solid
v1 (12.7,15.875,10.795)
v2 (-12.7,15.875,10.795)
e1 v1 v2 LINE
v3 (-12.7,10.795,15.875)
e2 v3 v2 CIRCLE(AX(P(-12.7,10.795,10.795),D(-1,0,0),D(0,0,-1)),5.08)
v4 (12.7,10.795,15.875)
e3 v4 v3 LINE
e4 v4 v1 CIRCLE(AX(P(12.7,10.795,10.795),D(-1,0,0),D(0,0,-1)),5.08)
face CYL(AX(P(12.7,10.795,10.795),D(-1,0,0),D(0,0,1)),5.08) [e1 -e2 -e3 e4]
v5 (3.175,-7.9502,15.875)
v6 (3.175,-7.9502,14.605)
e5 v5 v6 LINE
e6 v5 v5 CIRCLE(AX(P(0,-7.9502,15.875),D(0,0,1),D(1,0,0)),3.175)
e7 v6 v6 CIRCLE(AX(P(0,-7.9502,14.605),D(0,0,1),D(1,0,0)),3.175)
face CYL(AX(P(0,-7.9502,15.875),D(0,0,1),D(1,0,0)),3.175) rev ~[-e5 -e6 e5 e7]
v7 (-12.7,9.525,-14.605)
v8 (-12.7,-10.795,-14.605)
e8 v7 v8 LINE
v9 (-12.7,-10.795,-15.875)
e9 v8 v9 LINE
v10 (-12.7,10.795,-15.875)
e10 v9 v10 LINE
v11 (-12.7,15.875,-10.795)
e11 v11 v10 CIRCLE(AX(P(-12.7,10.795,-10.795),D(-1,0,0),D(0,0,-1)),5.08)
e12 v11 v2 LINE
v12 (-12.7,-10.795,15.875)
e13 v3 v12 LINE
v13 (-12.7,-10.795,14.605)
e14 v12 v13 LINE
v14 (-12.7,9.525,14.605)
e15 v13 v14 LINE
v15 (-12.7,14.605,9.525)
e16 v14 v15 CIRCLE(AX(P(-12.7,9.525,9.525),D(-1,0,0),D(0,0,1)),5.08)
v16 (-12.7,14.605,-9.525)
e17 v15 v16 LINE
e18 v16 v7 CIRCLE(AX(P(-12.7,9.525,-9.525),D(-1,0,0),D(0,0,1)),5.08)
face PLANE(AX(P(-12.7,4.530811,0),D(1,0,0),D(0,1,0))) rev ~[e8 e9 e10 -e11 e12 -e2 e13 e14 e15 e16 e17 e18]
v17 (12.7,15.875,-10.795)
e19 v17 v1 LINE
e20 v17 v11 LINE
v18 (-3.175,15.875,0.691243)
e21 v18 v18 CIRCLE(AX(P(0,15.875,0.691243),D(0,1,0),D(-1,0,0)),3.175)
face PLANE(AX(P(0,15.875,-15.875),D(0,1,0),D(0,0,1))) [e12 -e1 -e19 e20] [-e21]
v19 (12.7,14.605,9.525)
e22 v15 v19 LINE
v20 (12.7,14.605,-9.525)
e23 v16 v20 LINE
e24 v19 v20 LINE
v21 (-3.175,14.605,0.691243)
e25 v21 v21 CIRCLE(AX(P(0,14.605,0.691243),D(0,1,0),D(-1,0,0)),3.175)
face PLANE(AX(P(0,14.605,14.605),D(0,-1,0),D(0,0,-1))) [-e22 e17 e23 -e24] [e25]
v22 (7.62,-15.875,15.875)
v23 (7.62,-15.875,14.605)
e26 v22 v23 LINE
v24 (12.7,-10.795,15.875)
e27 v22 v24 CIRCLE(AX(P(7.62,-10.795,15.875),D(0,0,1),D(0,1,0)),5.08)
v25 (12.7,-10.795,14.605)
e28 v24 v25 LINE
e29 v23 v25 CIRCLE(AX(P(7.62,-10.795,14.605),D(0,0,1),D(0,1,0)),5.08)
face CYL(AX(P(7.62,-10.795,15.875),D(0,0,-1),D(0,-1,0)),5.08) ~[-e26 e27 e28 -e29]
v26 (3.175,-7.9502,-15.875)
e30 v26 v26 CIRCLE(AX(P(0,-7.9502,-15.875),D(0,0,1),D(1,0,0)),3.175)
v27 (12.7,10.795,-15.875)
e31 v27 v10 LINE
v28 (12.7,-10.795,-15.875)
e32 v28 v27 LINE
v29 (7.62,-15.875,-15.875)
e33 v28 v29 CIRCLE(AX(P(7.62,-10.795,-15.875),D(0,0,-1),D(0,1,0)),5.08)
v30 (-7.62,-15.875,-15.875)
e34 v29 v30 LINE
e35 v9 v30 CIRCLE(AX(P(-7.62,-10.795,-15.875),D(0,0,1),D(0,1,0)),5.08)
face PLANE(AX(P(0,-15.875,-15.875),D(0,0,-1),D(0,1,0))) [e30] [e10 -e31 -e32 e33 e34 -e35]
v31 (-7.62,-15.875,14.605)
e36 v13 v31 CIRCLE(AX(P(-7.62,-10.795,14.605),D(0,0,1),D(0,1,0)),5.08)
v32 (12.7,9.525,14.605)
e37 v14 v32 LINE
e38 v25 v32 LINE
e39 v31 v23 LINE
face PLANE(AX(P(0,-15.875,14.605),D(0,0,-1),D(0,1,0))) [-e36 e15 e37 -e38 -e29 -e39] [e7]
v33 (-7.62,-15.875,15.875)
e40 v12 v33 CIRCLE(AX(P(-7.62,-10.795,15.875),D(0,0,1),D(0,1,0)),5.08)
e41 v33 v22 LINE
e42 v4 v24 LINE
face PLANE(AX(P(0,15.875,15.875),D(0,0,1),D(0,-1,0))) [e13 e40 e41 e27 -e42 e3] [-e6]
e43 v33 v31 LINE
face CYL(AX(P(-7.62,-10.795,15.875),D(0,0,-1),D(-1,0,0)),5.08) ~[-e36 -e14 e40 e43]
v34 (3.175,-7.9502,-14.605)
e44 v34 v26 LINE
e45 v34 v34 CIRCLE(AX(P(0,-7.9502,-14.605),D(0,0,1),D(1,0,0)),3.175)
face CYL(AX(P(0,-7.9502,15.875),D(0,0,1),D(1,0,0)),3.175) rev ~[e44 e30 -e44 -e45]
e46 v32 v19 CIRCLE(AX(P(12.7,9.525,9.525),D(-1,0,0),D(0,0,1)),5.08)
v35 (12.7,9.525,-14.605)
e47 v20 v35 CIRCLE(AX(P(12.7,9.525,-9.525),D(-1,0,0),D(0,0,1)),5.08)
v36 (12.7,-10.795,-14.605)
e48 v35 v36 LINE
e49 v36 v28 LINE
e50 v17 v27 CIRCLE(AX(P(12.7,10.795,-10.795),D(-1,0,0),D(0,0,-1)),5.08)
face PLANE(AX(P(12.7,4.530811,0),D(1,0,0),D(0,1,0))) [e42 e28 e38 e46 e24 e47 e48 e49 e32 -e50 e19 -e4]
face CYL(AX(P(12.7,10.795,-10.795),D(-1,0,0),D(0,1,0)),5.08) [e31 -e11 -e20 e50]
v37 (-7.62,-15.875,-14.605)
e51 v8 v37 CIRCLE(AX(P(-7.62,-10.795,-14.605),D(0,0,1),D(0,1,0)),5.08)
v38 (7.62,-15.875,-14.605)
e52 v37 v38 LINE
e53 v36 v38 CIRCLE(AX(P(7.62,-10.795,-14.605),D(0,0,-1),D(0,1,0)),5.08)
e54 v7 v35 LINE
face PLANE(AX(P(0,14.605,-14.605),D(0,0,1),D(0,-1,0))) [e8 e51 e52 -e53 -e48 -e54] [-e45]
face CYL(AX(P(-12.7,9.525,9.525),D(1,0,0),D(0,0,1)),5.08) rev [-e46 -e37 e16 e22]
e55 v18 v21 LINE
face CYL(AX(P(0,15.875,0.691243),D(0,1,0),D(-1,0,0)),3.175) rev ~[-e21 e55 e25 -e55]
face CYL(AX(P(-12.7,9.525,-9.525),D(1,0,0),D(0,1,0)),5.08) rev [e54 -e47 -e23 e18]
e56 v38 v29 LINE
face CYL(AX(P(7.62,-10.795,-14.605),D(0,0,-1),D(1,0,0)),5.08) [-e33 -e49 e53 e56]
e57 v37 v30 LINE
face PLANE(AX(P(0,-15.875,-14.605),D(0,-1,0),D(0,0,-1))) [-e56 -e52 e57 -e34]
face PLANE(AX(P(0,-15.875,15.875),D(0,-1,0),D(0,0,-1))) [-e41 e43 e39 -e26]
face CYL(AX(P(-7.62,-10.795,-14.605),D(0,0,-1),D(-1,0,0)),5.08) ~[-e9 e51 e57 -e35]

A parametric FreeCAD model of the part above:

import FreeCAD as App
import Part
import Sketcher
Q = App.Units.Quantity


def edges_at(feature, points):
    """Names of the edges that pass closest to the given points."""
    edges = feature.Shape.Edges
    near = lambda p: min(range(len(edges)), key=lambda i: edges[i].distToShape(Part.Vertex(*p))[0])
    return sorted({f"Edge{near(p) + 1}" for p in points})


def add_polygon(sketch, points):
    """Adds a closed chain of lines whose ends are joined by coincident constraints."""
    first, n = sketch.GeometryCount, len(points)
    for a, b in zip(points, points[1:] + points[:1]):
        sketch.addGeometry(Part.LineSegment(App.Vector(*a, 0), App.Vector(*b, 0)), False)
    for i in range(n):
        sketch.addConstraint(Sketcher.Constraint("Coincident", first + i, 2, first + (i + 1) % n, 1))

doc = App.newDocument("Part")
params = doc.addObject("Spreadsheet::Sheet", "Params")
for row, (alias, value) in enumerate([
    ("sketch1_width", "1.2 in"),
    ("sketch1_width2", "1.25 in"),
    ("sketch1_height", "0.05 in"),
    ("pad1_length", "0.5 in"),
    ("pad1_length2", "0.5 in"),
    ("sketch2_diameter", "0.25 in"),
    ("fillet_radius", "0.2 in"),
    ("fillet2_radius", "0.2 in"),
    ("sketch3_diameter", "0.25 in"),
], start=1):
    params.set(f"A{row}", alias)
    params.set(f"B{row}", "=" + value)
    params.setAlias(f"B{row}", alias)

body = doc.addObject("PartDesign::Body", "Body")

# Sketch on YZ plane
sketch1 = body.newObject("Sketcher::SketchObject", "Sketch")
sketch1.AttachmentSupport = (doc.getObject("YZ_Plane"), [""])
sketch1.MapMode = "FlatFace"
add_polygon(sketch1, [(15.9, 15.9), (-15.9, 15.9), (-15.9, 14.6), (14.6, 14.6), (14.6, -14.6), (-15.9, -14.6), (-15.9, -15.9), (15.9, -15.9)])  # lines 0-7
sketch1.addConstraint([
    Sketcher.Constraint("Horizontal", 0),
    Sketcher.Constraint("Vertical", 1),
    Sketcher.Constraint("Horizontal", 2),
    Sketcher.Constraint("Vertical", 3),
    Sketcher.Constraint("Horizontal", 4),
    Sketcher.Constraint("Vertical", 5),
    Sketcher.Constraint("Horizontal", 6),
    Sketcher.Constraint("Vertical", 7),
    Sketcher.Constraint("Symmetric", 0, 2, 6, 2, -1, 1),
    Sketcher.Constraint("Symmetric", 1, 2, 4, 2, -1),
    Sketcher.Constraint("Equal", 6, 7),
    Sketcher.Constraint("DistanceX", 2, 1, 2, 2, Q("1.2 in")),
    Sketcher.Constraint("DistanceX", 0, 2, 0, 1, Q("1.25 in")),
    Sketcher.Constraint("DistanceY", 1, 2, 1, 1, Q("0.05 in")),
])
sketch1.setExpression("Constraints[19]", "Params.sketch1_width")
sketch1.setExpression("Constraints[20]", "Params.sketch1_width2")
sketch1.setExpression("Constraints[21]", "Params.sketch1_height")
pad1 = body.newObject("PartDesign::Pad", "Pad")
pad1.Profile = sketch1
pad1.Type = "TwoLengths"
pad1.setExpression("Length", "Params.pad1_length")
pad1.setExpression("Length2", "Params.pad1_length2")

# Sketch on XY plane
sketch2 = body.newObject("Sketcher::SketchObject", "Sketch001")
sketch2.AttachmentSupport = (doc.getObject("XY_Plane"), [""])
sketch2.MapMode = "FlatFace"
sketch2.AttachmentOffset = App.Placement(App.Vector(0, 0, 0.625 * 25.4), App.Rotation())
sketch2.addGeometry(Part.Circle(App.Vector(0, -8, 0), App.Vector(0, 0, 1), 3.2), False)
sketch2.addConstraint([
    Sketcher.Constraint("PointOnObject", 0, 3, -2),
    Sketcher.Constraint("Diameter", 0, Q("0.25 in")),
    Sketcher.Constraint("DistanceY", 0, 3, -1, 1, Q("0.313 in")),
])
sketch2.setExpression("Constraints[1]", "Params.sketch2_diameter")
pocket1 = body.newObject("PartDesign::Pocket", "Pocket")
pocket1.Profile = sketch2
pocket1.Type = "ThroughAll"
doc.recompute()

fillet = body.newObject("PartDesign::Fillet", "Fillet")
fillet.Base = (pocket1, edges_at(pocket1, [
    (0, 15.875, 15.875),
    (0, 15.875, -15.875),
    (0, 14.605, 14.605),
    (0, 14.605, -14.605),
]))
fillet.setExpression("Radius", "Params.fillet_radius")
doc.recompute()

fillet2 = body.newObject("PartDesign::Fillet", "Fillet001")
fillet2.Base = (fillet, edges_at(fillet, [
    (12.7, -15.875, 15.24),
    (-12.7, -15.875, 15.24),
    (12.7, -15.875, -15.24),
    (-12.7, -15.875, -15.24),
]))
fillet2.setExpression("Radius", "Params.fillet2_radius")

# Sketch on XZ plane
sketch3 = body.newObject("Sketcher::SketchObject", "Sketch002")
sketch3.AttachmentSupport = (doc.getObject("XZ_Plane"), [""])
sketch3.MapMode = "FlatFace"
sketch3.AttachmentOffset = App.Placement(App.Vector(0, 0, -0.625 * 25.4), App.Rotation())
sketch3.addGeometry(Part.Circle(App.Vector(0, 0.7, 0), App.Vector(0, 0, 1), 3.2), False)
sketch3.addConstraint([
    Sketcher.Constraint("PointOnObject", 0, 3, -2),
    Sketcher.Constraint("Diameter", 0, Q("0.25 in")),
    Sketcher.Constraint("DistanceY", -1, 1, 0, 3, 0.691243),
])
sketch3.setExpression("Constraints[1]", "Params.sketch3_diameter")
pocket2 = body.newObject("PartDesign::Pocket", "Pocket001")
pocket2.Profile = sketch3
pocket2.Type = "ThroughAll"
pocket2.Reversed = True

doc.recompute()
